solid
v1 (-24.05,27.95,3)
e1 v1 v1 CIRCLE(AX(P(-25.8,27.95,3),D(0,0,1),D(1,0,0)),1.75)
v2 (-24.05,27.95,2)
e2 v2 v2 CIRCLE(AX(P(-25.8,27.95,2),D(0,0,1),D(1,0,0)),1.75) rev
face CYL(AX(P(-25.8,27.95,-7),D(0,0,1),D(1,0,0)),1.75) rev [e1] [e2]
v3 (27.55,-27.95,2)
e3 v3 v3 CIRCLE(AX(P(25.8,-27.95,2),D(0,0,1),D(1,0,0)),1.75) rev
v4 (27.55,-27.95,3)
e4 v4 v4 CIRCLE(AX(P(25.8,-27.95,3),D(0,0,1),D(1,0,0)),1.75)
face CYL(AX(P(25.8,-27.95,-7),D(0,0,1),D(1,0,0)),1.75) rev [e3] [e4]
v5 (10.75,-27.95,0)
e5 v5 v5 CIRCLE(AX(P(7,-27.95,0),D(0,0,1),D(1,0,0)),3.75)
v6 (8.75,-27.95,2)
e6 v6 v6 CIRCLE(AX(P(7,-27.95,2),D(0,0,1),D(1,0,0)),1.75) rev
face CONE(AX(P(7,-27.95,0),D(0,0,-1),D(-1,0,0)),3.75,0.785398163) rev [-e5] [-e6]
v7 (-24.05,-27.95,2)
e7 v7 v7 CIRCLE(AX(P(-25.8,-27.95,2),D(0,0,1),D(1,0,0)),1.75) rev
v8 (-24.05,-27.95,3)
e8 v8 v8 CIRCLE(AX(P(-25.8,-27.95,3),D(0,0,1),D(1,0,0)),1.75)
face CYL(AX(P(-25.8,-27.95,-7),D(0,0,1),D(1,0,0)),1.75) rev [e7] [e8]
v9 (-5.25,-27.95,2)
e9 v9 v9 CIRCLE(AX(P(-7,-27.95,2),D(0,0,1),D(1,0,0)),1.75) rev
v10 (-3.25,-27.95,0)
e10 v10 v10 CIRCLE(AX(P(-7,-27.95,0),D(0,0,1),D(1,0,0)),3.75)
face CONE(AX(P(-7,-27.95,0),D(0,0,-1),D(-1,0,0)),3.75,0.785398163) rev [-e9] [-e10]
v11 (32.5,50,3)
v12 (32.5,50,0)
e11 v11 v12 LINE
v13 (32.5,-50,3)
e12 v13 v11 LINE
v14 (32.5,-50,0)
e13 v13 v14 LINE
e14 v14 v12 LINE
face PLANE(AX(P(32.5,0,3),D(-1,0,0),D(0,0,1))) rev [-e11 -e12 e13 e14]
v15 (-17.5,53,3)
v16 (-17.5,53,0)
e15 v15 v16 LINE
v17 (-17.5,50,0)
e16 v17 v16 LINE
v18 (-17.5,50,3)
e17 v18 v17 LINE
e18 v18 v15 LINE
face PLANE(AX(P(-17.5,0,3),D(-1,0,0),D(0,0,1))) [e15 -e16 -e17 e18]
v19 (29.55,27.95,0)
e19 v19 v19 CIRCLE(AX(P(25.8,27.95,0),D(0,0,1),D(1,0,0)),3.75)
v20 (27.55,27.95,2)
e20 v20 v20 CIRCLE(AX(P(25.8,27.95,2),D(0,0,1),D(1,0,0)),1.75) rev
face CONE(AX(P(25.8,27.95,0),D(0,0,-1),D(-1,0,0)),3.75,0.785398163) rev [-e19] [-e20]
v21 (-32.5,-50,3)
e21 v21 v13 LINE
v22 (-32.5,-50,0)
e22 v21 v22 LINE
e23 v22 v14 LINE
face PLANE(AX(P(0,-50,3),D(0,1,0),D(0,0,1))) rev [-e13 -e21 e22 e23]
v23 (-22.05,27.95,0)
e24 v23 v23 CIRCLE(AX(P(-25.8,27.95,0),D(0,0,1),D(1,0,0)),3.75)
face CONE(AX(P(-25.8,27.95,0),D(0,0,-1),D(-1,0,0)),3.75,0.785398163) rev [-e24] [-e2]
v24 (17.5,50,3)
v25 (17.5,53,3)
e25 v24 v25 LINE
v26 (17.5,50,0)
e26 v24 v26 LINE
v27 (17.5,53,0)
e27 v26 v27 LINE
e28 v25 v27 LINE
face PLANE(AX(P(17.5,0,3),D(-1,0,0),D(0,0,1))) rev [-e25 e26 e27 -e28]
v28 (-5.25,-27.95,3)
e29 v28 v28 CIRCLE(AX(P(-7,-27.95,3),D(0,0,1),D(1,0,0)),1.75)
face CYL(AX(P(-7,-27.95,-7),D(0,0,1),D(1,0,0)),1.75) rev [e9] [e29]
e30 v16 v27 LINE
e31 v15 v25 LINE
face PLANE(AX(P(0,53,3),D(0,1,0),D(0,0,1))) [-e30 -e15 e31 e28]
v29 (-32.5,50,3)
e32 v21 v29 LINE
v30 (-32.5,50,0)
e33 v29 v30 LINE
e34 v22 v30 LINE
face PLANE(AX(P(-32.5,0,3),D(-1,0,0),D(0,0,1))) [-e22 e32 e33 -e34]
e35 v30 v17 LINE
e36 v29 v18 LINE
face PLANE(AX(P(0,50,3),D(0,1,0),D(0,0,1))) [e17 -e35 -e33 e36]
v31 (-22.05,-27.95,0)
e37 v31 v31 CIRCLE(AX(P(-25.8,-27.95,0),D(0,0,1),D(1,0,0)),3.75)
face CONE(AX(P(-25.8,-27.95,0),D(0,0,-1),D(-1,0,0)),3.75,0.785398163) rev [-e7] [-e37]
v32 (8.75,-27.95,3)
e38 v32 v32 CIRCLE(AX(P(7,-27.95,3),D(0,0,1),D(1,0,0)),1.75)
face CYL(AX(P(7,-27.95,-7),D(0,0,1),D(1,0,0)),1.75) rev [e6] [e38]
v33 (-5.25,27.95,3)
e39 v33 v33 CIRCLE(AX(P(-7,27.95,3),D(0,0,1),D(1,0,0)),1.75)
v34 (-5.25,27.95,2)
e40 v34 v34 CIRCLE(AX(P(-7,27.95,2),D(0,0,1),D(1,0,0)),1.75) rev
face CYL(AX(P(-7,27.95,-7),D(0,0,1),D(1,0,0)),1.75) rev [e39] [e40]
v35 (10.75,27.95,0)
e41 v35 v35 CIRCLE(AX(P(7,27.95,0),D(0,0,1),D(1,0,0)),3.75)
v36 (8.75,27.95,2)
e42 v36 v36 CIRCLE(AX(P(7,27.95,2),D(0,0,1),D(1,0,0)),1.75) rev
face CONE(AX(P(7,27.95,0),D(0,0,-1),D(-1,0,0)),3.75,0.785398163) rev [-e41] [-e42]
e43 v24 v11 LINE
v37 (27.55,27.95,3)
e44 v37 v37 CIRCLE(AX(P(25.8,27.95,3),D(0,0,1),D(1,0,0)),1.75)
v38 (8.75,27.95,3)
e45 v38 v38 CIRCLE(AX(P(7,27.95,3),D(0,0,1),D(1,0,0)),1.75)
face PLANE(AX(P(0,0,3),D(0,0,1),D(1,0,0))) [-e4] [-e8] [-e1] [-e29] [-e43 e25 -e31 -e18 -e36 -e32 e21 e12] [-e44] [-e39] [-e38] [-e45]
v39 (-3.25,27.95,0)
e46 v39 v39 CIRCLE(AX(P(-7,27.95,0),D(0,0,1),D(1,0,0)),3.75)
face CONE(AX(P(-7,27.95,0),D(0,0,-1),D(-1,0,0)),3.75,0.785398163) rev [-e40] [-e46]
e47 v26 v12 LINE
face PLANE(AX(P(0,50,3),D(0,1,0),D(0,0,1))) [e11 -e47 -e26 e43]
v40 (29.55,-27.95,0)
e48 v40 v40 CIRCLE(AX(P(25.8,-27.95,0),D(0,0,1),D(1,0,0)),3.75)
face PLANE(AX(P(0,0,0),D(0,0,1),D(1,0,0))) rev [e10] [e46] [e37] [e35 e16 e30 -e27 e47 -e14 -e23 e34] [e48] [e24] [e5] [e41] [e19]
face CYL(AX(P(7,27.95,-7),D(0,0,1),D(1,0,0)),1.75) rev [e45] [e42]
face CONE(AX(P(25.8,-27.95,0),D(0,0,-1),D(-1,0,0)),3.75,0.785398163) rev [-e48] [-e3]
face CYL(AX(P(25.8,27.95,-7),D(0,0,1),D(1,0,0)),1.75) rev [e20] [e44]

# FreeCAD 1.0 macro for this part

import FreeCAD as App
import Part
import Sketcher


def edges_at(feature, points):
    """Names of the edges that pass closest to the given points."""
    edges = feature.Shape.Edges
    near = lambda p: min(range(len(edges)), key=lambda i: edges[i].distToShape(Part.Vertex(*p))[0])
    return sorted({f"Edge{near(p) + 1}" for p in points})


def add_polygon(sketch, points):
    """Adds a closed chain of lines whose ends are joined by coincident constraints."""
    first, n = sketch.GeometryCount, len(points)
    for a, b in zip(points, points[1:] + points[:1]):
        sketch.addGeometry(Part.LineSegment(App.Vector(*a, 0), App.Vector(*b, 0)), False)
    for i in range(n):
        sketch.addConstraint(Sketcher.Constraint("Coincident", first + i, 2, first + (i + 1) % n, 1))

doc = App.newDocument("Part")
body = doc.addObject("PartDesign::Body", "Body")

# Sketch on XY plane
sketch1 = body.newObject("Sketcher::SketchObject", "Sketch")
sketch1.AttachmentSupport = (doc.getObject("XY_Plane"), [""])
sketch1.MapMode = "FlatFace"
add_polygon(sketch1, [(-32.5, 50), (-32.5, -50), (32.5, -50), (32.5, 50), (17.5, 50), (17.5, 53), (-17.5, 53), (-17.5, 50)])  # lines 0-7
sketch1.addConstraint(Sketcher.Constraint("Vertical", 0))
sketch1.addConstraint(Sketcher.Constraint("Horizontal", 1))
sketch1.addConstraint(Sketcher.Constraint("Vertical", 2))
sketch1.addConstraint(Sketcher.Constraint("Horizontal", 3))
sketch1.addConstraint(Sketcher.Constraint("Vertical", 4))
sketch1.addConstraint(Sketcher.Constraint("Horizontal", 5))
sketch1.addConstraint(Sketcher.Constraint("Vertical", 6))
sketch1.addConstraint(Sketcher.Constraint("Horizontal", 7))
sketch1.addConstraint(Sketcher.Constraint("Symmetric", 0, 2, 2, 2, -1, 1))
sketch1.addConstraint(Sketcher.Constraint("Symmetric", 3, 2, 6, 2, -2))
sketch1.addConstraint(Sketcher.Constraint("DistanceX", 1, 1, 1, 2, 65.0))
sketch1.addConstraint(Sketcher.Constraint("DistanceX", 3, 2, 3, 1, 15.0))
sketch1.addConstraint(Sketcher.Constraint("DistanceY", 0, 2, 0, 1, 100.0))
sketch1.addConstraint(Sketcher.Constraint("DistanceY", 4, 1, 4, 2, 3.0))
pad1 = body.newObject("PartDesign::Pad", "Pad")
pad1.Profile = sketch1
pad1.Length = 3

# Sketch on XY plane
sketch2 = body.newObject("Sketcher::SketchObject", "Sketch001")
sketch2.AttachmentSupport = (doc.getObject("XY_Plane"), [""])
sketch2.MapMode = "FlatFace"
sketch2.AttachmentOffset = App.Placement(App.Vector(0, 0, 3), App.Rotation())
sketch2.addGeometry(Part.Circle(App.Vector(-25.8, 27.9, 0), App.Vector(0, 0, 1), 1.8), False)
sketch2.addGeometry(Part.Circle(App.Vector(-7, 27.9, 0), App.Vector(0, 0, 1), 1.8), False)
sketch2.addGeometry(Part.Circle(App.Vector(7, 27.9, 0), App.Vector(0, 0, 1), 1.8), False)
sketch2.addGeometry(Part.Circle(App.Vector(25.8, 27.9, 0), App.Vector(0, 0, 1), 1.8), False)
sketch2.addGeometry(Part.Circle(App.Vector(-25.8, -27.9, 0), App.Vector(0, 0, 1), 1.8), False)
sketch2.addGeometry(Part.Circle(App.Vector(-7, -27.9, 0), App.Vector(0, 0, 1), 1.8), False)
sketch2.addGeometry(Part.Circle(App.Vector(7, -27.9, 0), App.Vector(0, 0, 1), 1.8), False)
sketch2.addGeometry(Part.Circle(App.Vector(25.8, -27.9, 0), App.Vector(0, 0, 1), 1.8), False)
sketch2.addConstraint(Sketcher.Constraint("Equal", 0, 1))
sketch2.addConstraint(Sketcher.Constraint("Equal", 1, 2))
sketch2.addConstraint(Sketcher.Constraint("Equal", 2, 3))
sketch2.addConstraint(Sketcher.Constraint("Equal", 3, 4))
sketch2.addConstraint(Sketcher.Constraint("Equal", 4, 5))
sketch2.addConstraint(Sketcher.Constraint("Equal", 5, 6))
sketch2.addConstraint(Sketcher.Constraint("Equal", 6, 7))
sketch2.addConstraint(Sketcher.Constraint("Symmetric", 3, 3, 4, 3, -1, 1))
sketch2.addConstraint(Sketcher.Constraint("Symmetric", 2, 3, 5, 3, -1, 1))
sketch2.addConstraint(Sketcher.Constraint("Symmetric", 1, 3, 6, 3, -1, 1))
sketch2.addConstraint(Sketcher.Constraint("Symmetric", 0, 3, 7, 3, -1, 1))
sketch2.addConstraint(Sketcher.Constraint("Symmetric", 1, 3, 2, 3, -2))
sketch2.addConstraint(Sketcher.Constraint("Symmetric", 0, 3, 3, 3, -2))
sketch2.addConstraint(Sketcher.Constraint("Horizontal", 0, 3, 1, 3))
sketch2.addConstraint(Sketcher.Constraint("Diameter", 0, 3.5))
sketch2.addConstraint(Sketcher.Constraint("DistanceX", 1, 3, -1, 1, 7.0))
sketch2.addConstraint(Sketcher.Constraint("DistanceX", 0, 3, -1, 1, 25.8))
sketch2.addConstraint(Sketcher.Constraint("DistanceY", 4, 3, 0, 3, 55.9))
pocket1 = body.newObject("PartDesign::Pocket", "Pocket")
pocket1.Profile = sketch2
pocket1.Length = 10
doc.recompute()

chamfer = body.newObject("PartDesign::Chamfer", "Chamfer")
chamfer.Base = (pocket1, edges_at(pocket1, [
    (-27.55, -27.95, 0),
    (24.05, 27.95, 0),
    (5.25, 27.95, 0),
    (-8.75, 27.95, 0),
    (-8.75, -27.95, 0),
    (5.25, -27.95, 0),
    (24.05, -27.95, 0),
    (-27.55, 27.95, 0),
]))
chamfer.Size = 2

doc.recompute()
